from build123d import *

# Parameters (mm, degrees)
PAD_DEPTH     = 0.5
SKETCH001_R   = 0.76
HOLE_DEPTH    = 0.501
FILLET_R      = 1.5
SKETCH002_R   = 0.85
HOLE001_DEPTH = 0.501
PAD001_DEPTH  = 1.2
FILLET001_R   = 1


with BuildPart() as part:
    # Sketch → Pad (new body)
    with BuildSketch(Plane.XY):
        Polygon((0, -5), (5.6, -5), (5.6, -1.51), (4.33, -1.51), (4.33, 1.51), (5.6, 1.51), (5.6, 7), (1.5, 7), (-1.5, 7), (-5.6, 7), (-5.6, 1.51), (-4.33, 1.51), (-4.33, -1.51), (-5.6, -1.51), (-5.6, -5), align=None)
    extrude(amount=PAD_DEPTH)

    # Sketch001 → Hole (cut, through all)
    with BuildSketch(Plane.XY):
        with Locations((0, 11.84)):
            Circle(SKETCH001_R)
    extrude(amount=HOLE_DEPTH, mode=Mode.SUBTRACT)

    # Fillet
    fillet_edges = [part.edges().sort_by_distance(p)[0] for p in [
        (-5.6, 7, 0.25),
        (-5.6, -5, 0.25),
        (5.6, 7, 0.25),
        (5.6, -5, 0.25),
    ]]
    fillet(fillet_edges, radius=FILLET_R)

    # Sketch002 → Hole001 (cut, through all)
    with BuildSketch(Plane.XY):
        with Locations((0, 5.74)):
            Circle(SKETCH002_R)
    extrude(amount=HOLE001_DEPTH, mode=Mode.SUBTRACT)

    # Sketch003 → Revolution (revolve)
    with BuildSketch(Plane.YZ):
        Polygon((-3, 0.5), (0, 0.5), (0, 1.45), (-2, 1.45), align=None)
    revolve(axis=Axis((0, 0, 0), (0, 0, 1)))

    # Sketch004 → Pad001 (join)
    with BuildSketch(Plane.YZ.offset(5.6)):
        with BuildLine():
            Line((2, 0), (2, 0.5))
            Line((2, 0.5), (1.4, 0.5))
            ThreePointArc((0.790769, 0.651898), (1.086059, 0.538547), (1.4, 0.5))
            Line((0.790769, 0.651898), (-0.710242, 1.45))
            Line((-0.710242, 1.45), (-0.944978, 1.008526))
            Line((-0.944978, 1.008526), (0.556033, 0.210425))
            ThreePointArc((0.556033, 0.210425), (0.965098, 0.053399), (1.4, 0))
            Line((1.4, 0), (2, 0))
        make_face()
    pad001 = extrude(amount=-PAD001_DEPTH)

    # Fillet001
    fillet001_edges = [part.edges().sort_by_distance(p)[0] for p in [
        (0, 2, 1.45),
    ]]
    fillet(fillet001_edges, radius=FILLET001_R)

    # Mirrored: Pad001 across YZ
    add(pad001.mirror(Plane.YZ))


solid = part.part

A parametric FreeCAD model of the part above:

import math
import FreeCAD as App
import Part
import Sketcher

V = App.Vector
Q = App.Units.Quantity


def edges_at(feature, points):
    """Names of the edges that pass closest to the given points."""
    edges = feature.Shape.Edges
    near = lambda p: min(range(len(edges)), key=lambda i: edges[i].distToShape(Part.Vertex(*p))[0])
    return sorted({f"Edge{near(p) + 1}" for p in points})

doc = App.newDocument("Part")
body = doc.addObject("PartDesign::Body", "Body")

sketch1 = body.newObject("Sketcher::SketchObject", "Sketch")
sketch1.AttachmentSupport = (doc.getObject("XY_Plane"), [""])
sketch1.MapMode = "FlatFace"
sketch1.addGeometry([
    Part.LineSegment(V(5.6, -5, 0), V(5.6, -1.5, 0)),
    Part.LineSegment(V(5.6, -1.5, 0), V(4.3, -1.5, 0)),
    Part.LineSegment(V(4.3, -1.5, 0), V(4.3, 1.5, 0)),
    Part.LineSegment(V(4.3, 1.5, 0), V(5.6, 1.5, 0)),
    Part.LineSegment(V(5.6, 1.5, 0), V(5.6, 7, 0)),
    Part.LineSegment(V(5.6, 7, 0), V(-5.6, 7, 0)),
    Part.LineSegment(V(-5.6, 7, 0), V(-5.6, 1.5, 0)),
    Part.LineSegment(V(-5.6, 1.5, 0), V(-4.3, 1.5, 0)),
    Part.LineSegment(V(-4.3, 1.5, 0), V(-4.3, -1.5, 0)),
    Part.LineSegment(V(-4.3, -1.5, 0), V(-5.6, -1.5, 0)),
    Part.LineSegment(V(-5.6, -1.5, 0), V(-5.6, -5, 0)),
    Part.LineSegment(V(-5.6, -5, 0), V(5.6, -5, 0)),
], False)
sketch1.addConstraint([
    Sketcher.Constraint("Coincident", 0, 2, 1, 1),
    Sketcher.Constraint("Coincident", 1, 2, 2, 1),
    Sketcher.Constraint("Coincident", 2, 2, 3, 1),
    Sketcher.Constraint("Coincident", 3, 2, 4, 1),
    Sketcher.Constraint("Coincident", 4, 2, 5, 1),
    Sketcher.Constraint("Coincident", 5, 2, 6, 1),
    Sketcher.Constraint("Coincident", 6, 2, 7, 1),
    Sketcher.Constraint("Coincident", 7, 2, 8, 1),
    Sketcher.Constraint("Coincident", 8, 2, 9, 1),
    Sketcher.Constraint("Coincident", 9, 2, 10, 1),
    Sketcher.Constraint("Coincident", 10, 2, 11, 1),
    Sketcher.Constraint("Coincident", 11, 2, 0, 1),
    Sketcher.Constraint("Vertical", 0),
    Sketcher.Constraint("Horizontal", 1),
    Sketcher.Constraint("Vertical", 2),
    Sketcher.Constraint("Horizontal", 3),
    Sketcher.Constraint("Vertical", 4),
    Sketcher.Constraint("Horizontal", 5),
    Sketcher.Constraint("Vertical", 6),
    Sketcher.Constraint("Horizontal", 7),
    Sketcher.Constraint("Vertical", 8),
    Sketcher.Constraint("Horizontal", 9),
    Sketcher.Constraint("Vertical", 10),
    Sketcher.Constraint("Horizontal", 11),
    Sketcher.Constraint("Symmetric", 0, 2, 6, 2, -1, 1),
    Sketcher.Constraint("Symmetric", 2, 2, 8, 2, -1, 1),
    Sketcher.Constraint("Symmetric", 3, 2, 6, 2, -2),
    Sketcher.Constraint("Vertical", 6, 2, 9, 2),
    Sketcher.Constraint("DistanceX", 5, 2, 5, 1, Q("11.2 mm")),
    Sketcher.Constraint("DistanceY", -1, 1, 4, 2, Q("7 mm")),
    Sketcher.Constraint("DistanceY", 10, 2, -1, 1, Q("5 mm")),
    Sketcher.Constraint("DistanceX", 1, 2, 1, 1, Q("1.27 mm")),
    Sketcher.Constraint("DistanceY", 0, 1, 0, 2, Q("3.49 mm")),
])
pad1 = body.newObject("PartDesign::Pad", "Pad")
pad1.Profile = sketch1
pad1.Length = 0.5

sketch2 = body.newObject("Sketcher::SketchObject", "Sketch001")
sketch2.AttachmentSupport = (doc.getObject("XY_Plane"), [""])
sketch2.MapMode = "FlatFace"
sketch2.addGeometry(Part.Circle(V(0, 11.8, 0), V(0, 0, 1), 0.8), False)
sketch2.addConstraint([
    Sketcher.Constraint("PointOnObject", 0, 3, -2),
    Sketcher.Constraint("Diameter", 0, Q("1.52 mm")),
    Sketcher.Constraint("DistanceY", -1, 1, 0, 3, Q("11.84 mm")),
])
pocket1 = body.newObject("PartDesign::Pocket", "Pocket")
pocket1.Profile = sketch2
pocket1.Type = "ThroughAll"
pocket1.Reversed = True
doc.recompute()

fillet = body.newObject("PartDesign::Fillet", "Fillet")
fillet.Base = (pocket1, edges_at(pocket1, [
    (-5.6, 7, 0.25),
    (-5.6, -5, 0.25),
    (5.6, 7, 0.25),
    (5.6, -5, 0.25),
]))
fillet.Radius = 1.5

sketch3 = body.newObject("Sketcher::SketchObject", "Sketch002")
sketch3.AttachmentSupport = (doc.getObject("XY_Plane"), [""])
sketch3.MapMode = "FlatFace"
sketch3.addGeometry(Part.Circle(V(0, 5.7, 0), V(0, 0, 1), 0.8), False)
sketch3.addConstraint([
    Sketcher.Constraint("PointOnObject", 0, 3, -2),
    Sketcher.Constraint("Diameter", 0, Q("1.7 mm")),
    Sketcher.Constraint("DistanceY", -1, 1, 0, 3, Q("5.74 mm")),
])
pocket2 = body.newObject("PartDesign::Pocket", "Pocket001")
pocket2.Profile = sketch3
pocket2.Type = "ThroughAll"
pocket2.Reversed = True

sketch4 = body.newObject("Sketcher::SketchObject", "Sketch003")
sketch4.AttachmentSupport = (doc.getObject("YZ_Plane"), [""])
sketch4.MapMode = "FlatFace"
sketch4.addGeometry([
    Part.LineSegment(V(-3, 0.5, 0), V(0, 0.5, 0)),
    Part.LineSegment(V(0, 0.5, 0), V(0, 1.4, 0)),
    Part.LineSegment(V(0, 1.4, 0), V(-2, 1.4, 0)),
    Part.LineSegment(V(-2, 1.4, 0), V(-3, 0.5, 0)),
], False)
sketch4.addConstraint([
    Sketcher.Constraint("Coincident", 0, 2, 1, 1),
    Sketcher.Constraint("Coincident", 1, 2, 2, 1),
    Sketcher.Constraint("Coincident", 2, 2, 3, 1),
    Sketcher.Constraint("Coincident", 3, 2, 0, 1),
    Sketcher.Constraint("Horizontal", 0),
    Sketcher.Constraint("Vertical", 1),
    Sketcher.Constraint("Horizontal", 2),
    Sketcher.Constraint("PointOnObject", 0, 2, -2),
    Sketcher.Constraint("DistanceX", 0, 1, 0, 2, Q("3 mm")),
    Sketcher.Constraint("DistanceX", 2, 2, 2, 1, Q("2 mm")),
    Sketcher.Constraint("DistanceY", 1, 1, 1, 2, Q("0.95 mm")),
    Sketcher.Constraint("DistanceY", -1, 1, 0, 2, Q("0.5 mm")),
])
revolution = body.newObject("PartDesign::Revolution", "Revolution")
revolution.Profile = sketch4
revolution.ReferenceAxis = (sketch4, ["V_Axis"])
revolution.Angle = 360

sketch5 = body.newObject("Sketcher::SketchObject", "Sketch004")
sketch5.AttachmentSupport = (doc.getObject("YZ_Plane"), [""])
sketch5.MapMode = "FlatFace"
sketch5.AttachmentOffset = App.Placement(V(0, 0, 5.6), App.Rotation())
sketch5.addGeometry([
    Part.LineSegment(V(2, 0, 0), V(2, 0.5, 0)),
    Part.LineSegment(V(2, 0.5, 0), V(1.4, 0.5, 0)),
    Part.ArcOfCircle(Part.Circle(V(1.4, 1.8, 0), V(0, 0, 1), 1.3), math.radians(-118), math.radians(-90)),
    Part.LineSegment(V(0.8, 0.7, 0), V(-0.7, 1.4, 0)),
    Part.LineSegment(V(-0.7, 1.4, 0), V(-0.9, 1, 0)),
    Part.LineSegment(V(-0.9, 1, 0), V(0.6, 0.2, 0)),
    Part.ArcOfCircle(Part.Circle(V(1.4, 1.8, 0), V(0, 0, 1), 1.8), math.radians(-118), math.radians(-90)),
    Part.LineSegment(V(1.4, 0, 0), V(2, 0, 0)),
], False)
sketch5.addConstraint([
    Sketcher.Constraint("Coincident", 0, 2, 1, 1),
    Sketcher.Constraint("Tangent", 1, 2, 2, 2),
    Sketcher.Constraint("Tangent", 2, 1, 3, 1),
    Sketcher.Constraint("Coincident", 3, 2, 4, 1),
    Sketcher.Constraint("Coincident", 4, 2, 5, 1),
    Sketcher.Constraint("Coincident", 5, 2, 6, 1),
    Sketcher.Constraint("Tangent", 6, 2, 7, 1),
    Sketcher.Constraint("Coincident", 7, 2, 0, 1),
    Sketcher.Constraint("Vertical", 0),
    Sketcher.Constraint("Horizontal", 1),
    Sketcher.Constraint("Horizontal", 7),
    Sketcher.Constraint("PointOnObject", 6, 2, -1),
    Sketcher.Constraint("Perpendicular", 3, 4),
    Sketcher.Constraint("Perpendicular", 4, 5),
    Sketcher.Constraint("Vertical", 1, 2, 6, 2),
    Sketcher.Constraint("Equal", 3, 5),
    Sketcher.Constraint("Angle", 3, Q("151.999991 deg")),
    Sketcher.Constraint("DistanceX", 1, 2, 1, 1, Q("0.6 mm")),
    Sketcher.Constraint("DistanceY", 0, 1, 0, 2, Q("0.5 mm")),
    Sketcher.Constraint("DistanceX", -1, 1, 0, 2, Q("2 mm")),
    Sketcher.Constraint("Distance", 3, Q("1.7 mm")),
    Sketcher.Constraint("Distance", 4, Q("0.5 mm")),
    Sketcher.Constraint("DistanceY", -1, 1, 3, 2, Q("1.45 mm")),
])
pad2 = body.newObject("PartDesign::Pad", "Pad001")
pad2.Profile = sketch5
pad2.Length = 1.2
pad2.Reversed = True
doc.recompute()

fillet2 = body.newObject("PartDesign::Fillet", "Fillet001")
fillet2.Base = (pad2, edges_at(pad2, [(0, 2, 1.45)]))
fillet2.Radius = 1
doc.recompute()

mirrored = body.newObject("PartDesign::Mirrored", "Mirrored")
mirrored.Originals = [pad2]
mirrored.MirrorPlane = (doc.getObject("YZ_Plane"), [""])
body.Tip = mirrored

doc.recompute()
